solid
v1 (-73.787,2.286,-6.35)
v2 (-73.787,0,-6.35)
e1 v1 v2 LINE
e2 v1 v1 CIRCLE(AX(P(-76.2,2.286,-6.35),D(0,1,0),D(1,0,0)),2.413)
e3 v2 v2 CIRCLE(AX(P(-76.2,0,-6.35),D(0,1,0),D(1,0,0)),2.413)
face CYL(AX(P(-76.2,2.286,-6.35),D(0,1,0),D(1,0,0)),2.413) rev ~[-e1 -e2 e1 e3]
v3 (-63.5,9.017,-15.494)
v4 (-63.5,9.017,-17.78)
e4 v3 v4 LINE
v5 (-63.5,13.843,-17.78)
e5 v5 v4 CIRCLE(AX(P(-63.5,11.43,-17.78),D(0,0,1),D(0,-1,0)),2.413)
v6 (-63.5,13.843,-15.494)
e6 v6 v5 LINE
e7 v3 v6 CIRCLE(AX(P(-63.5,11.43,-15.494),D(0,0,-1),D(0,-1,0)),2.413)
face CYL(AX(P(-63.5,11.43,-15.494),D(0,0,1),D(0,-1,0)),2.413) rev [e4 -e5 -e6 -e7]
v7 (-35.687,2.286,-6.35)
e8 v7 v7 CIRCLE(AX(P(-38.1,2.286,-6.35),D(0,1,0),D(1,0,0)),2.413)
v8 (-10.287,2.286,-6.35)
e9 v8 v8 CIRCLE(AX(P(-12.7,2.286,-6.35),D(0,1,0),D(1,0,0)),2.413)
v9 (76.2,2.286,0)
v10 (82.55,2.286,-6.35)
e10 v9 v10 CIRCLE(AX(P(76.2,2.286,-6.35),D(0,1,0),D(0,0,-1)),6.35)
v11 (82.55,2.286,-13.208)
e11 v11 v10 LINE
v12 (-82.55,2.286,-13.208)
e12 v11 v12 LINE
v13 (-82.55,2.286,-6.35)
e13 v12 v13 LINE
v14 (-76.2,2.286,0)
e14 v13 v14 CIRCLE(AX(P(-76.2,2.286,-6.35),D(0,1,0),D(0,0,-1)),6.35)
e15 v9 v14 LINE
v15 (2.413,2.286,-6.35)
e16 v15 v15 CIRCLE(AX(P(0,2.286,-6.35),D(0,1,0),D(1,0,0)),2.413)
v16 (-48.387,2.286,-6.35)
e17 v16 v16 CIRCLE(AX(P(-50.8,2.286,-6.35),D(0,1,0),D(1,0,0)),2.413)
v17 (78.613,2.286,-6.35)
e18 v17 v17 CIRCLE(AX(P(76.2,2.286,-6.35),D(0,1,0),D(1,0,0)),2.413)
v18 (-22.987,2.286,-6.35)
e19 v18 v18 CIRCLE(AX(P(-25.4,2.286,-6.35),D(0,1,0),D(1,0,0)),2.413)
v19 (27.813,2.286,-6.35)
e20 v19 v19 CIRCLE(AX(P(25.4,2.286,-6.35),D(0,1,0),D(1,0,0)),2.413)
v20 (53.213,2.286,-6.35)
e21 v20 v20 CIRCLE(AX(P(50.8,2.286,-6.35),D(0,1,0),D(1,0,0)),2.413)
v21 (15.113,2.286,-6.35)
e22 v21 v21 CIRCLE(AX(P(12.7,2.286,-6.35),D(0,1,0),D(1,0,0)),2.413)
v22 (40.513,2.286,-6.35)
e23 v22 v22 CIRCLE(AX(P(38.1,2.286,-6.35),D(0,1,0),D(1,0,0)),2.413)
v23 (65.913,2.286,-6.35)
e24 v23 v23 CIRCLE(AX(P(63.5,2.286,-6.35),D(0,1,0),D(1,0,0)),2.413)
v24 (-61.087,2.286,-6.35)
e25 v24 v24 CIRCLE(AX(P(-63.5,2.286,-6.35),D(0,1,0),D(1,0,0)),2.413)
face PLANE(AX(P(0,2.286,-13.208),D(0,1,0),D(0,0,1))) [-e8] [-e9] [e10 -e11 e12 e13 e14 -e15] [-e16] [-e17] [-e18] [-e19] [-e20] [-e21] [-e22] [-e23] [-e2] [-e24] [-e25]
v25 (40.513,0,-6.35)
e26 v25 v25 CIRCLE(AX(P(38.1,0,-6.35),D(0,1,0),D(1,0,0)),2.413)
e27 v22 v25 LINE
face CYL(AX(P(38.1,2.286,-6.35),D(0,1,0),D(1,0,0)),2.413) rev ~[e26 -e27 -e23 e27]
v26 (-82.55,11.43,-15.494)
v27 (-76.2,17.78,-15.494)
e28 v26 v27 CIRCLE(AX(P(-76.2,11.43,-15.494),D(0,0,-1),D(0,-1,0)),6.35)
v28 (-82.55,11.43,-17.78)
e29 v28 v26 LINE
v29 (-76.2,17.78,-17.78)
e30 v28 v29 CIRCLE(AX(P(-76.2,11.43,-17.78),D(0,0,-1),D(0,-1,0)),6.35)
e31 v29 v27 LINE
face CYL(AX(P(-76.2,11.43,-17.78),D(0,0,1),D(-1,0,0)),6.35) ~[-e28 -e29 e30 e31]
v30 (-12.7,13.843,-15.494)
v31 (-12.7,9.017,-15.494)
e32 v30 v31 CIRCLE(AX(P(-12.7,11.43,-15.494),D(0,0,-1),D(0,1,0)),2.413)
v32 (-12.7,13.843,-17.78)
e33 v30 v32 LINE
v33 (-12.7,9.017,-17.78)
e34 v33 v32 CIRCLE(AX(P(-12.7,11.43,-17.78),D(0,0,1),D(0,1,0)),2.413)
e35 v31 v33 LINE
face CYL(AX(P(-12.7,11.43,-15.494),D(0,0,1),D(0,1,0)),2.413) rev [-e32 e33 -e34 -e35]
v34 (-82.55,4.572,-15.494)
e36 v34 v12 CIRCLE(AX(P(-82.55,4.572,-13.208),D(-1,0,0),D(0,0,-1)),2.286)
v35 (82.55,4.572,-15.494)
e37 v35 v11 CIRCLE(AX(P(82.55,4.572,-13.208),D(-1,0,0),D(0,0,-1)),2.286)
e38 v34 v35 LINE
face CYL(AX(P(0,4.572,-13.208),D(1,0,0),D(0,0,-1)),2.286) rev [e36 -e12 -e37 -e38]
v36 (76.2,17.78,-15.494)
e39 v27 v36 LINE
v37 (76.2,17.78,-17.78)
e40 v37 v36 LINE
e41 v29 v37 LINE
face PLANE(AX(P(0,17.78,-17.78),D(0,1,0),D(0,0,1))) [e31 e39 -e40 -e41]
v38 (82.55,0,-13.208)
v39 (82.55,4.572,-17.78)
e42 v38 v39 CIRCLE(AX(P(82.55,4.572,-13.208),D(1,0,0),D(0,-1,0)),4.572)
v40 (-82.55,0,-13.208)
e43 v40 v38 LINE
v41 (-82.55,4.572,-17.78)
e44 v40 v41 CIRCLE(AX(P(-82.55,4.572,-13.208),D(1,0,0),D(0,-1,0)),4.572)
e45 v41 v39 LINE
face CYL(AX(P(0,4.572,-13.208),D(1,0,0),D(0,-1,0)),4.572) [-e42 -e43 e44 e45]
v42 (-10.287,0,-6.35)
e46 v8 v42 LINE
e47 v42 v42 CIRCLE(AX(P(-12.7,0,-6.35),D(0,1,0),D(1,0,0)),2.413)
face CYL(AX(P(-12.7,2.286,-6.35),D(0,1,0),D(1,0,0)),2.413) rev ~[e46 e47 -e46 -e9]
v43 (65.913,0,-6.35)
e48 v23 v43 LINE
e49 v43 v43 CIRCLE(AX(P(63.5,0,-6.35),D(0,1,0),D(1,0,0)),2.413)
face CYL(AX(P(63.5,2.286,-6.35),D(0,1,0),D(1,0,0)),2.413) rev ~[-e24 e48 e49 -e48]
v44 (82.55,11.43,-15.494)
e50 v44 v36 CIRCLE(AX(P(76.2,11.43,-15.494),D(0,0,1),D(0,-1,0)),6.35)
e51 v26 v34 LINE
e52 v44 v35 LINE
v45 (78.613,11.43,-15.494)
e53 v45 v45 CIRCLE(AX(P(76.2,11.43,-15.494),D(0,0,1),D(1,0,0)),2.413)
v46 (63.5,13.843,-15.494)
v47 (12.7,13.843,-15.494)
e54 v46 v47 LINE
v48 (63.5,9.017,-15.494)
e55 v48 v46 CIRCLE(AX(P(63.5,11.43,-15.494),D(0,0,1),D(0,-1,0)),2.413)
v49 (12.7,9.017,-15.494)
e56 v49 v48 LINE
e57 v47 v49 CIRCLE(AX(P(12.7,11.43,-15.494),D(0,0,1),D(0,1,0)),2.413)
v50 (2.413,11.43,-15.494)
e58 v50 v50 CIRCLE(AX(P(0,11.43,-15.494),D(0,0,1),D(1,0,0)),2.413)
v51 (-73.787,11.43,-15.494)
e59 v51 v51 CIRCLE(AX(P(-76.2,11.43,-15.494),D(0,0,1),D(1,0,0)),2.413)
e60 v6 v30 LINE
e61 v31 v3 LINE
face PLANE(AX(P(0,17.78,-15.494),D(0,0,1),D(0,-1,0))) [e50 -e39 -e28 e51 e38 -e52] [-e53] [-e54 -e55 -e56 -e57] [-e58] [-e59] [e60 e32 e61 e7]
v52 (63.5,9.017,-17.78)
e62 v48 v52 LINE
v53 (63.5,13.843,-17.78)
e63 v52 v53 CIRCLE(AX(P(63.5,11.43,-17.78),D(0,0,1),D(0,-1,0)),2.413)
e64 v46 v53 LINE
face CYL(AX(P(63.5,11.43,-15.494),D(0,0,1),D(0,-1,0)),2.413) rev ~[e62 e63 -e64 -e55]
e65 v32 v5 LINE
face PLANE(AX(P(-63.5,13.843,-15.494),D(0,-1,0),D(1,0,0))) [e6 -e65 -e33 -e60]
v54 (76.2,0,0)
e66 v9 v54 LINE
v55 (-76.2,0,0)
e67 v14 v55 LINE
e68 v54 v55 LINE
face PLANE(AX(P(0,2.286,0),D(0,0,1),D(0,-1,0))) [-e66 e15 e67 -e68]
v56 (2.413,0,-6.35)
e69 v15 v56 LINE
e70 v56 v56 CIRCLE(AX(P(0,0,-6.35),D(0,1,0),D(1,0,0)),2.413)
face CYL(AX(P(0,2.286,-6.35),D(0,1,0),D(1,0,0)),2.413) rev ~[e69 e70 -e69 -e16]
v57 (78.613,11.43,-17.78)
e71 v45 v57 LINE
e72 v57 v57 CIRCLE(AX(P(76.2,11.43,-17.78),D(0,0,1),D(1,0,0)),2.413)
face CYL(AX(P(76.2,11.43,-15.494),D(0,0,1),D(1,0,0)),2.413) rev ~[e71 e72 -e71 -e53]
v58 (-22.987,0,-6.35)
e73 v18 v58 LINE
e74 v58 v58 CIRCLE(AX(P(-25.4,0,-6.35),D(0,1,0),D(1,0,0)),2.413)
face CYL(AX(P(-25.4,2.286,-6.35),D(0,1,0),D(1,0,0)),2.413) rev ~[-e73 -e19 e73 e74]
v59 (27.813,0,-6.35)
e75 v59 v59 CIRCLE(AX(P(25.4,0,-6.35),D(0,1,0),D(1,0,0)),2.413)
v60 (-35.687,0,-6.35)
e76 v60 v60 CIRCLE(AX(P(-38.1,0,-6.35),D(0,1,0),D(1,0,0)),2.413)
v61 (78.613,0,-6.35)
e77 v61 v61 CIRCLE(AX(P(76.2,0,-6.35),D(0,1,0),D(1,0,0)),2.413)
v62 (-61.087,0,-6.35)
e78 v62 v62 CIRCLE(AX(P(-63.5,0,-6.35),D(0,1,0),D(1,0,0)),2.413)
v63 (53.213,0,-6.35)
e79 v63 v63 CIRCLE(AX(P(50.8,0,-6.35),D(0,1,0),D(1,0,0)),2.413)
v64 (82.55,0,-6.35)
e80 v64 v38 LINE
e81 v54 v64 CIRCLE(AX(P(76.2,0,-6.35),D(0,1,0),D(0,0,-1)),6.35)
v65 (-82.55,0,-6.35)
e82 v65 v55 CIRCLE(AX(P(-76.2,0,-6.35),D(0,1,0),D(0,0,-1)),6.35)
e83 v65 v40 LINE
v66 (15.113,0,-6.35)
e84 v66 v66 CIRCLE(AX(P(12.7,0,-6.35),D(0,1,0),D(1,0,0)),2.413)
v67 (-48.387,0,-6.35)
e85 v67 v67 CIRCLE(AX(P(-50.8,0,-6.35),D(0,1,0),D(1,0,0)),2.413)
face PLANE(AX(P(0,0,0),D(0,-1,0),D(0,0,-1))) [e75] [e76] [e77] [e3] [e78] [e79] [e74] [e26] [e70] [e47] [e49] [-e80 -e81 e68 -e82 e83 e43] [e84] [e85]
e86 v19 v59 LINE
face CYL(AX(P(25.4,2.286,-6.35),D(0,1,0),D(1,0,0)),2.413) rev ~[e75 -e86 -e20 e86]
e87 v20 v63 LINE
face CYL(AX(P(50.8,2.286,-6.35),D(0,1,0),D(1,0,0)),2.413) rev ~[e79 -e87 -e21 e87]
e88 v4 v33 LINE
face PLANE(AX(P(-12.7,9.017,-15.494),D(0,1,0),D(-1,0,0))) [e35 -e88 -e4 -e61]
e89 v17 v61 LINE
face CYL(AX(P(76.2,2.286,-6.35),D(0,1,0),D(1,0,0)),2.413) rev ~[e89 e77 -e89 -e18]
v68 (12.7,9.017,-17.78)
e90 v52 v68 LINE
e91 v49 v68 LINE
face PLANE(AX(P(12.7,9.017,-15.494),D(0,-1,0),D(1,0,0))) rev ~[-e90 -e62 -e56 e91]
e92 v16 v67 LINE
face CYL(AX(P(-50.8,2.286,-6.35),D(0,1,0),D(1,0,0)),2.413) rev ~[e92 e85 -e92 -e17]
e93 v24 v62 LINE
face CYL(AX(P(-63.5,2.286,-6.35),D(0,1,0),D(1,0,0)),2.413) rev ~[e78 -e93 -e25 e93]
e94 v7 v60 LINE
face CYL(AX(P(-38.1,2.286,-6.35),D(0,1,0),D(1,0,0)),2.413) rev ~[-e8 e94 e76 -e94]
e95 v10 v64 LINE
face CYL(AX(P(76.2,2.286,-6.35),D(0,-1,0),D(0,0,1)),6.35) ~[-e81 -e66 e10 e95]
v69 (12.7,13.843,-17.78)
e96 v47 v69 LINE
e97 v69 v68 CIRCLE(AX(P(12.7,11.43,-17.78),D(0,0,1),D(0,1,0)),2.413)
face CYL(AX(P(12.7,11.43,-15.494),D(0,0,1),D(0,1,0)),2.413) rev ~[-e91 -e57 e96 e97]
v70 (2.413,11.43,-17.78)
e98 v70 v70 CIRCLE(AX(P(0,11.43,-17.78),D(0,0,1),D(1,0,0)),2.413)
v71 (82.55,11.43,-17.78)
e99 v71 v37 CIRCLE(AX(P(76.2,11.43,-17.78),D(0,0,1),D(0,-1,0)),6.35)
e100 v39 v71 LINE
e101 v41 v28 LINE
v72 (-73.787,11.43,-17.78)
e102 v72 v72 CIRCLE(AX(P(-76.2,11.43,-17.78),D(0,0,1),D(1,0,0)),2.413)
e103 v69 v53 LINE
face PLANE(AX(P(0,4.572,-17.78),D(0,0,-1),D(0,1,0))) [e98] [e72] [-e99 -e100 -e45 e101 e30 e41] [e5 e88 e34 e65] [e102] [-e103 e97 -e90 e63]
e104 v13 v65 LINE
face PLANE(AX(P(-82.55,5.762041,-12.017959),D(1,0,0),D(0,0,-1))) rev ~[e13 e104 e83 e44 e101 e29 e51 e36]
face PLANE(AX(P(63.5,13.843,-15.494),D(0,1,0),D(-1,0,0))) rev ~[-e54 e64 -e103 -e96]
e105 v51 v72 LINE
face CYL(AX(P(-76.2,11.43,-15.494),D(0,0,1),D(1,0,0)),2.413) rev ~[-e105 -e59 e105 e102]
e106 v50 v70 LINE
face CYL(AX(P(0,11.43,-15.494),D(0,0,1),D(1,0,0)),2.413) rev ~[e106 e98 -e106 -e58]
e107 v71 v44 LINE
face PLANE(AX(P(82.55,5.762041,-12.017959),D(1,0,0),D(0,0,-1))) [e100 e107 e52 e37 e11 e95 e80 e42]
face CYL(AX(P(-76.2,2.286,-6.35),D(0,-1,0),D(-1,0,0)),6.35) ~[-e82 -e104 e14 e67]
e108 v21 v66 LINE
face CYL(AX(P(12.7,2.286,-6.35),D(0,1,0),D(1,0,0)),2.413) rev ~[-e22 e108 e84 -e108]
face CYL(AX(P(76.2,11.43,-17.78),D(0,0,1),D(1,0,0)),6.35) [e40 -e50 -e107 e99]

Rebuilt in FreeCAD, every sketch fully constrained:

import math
import FreeCAD as App
import Part
import Sketcher

V = App.Vector
Q = App.Units.Quantity


def edges_at(feature, points):
    """Names of the edges that pass closest to the given points."""
    edges = feature.Shape.Edges
    near = lambda p: min(range(len(edges)), key=lambda i: edges[i].distToShape(Part.Vertex(*p))[0])
    return sorted({f"Edge{near(p) + 1}" for p in points})

doc = App.newDocument("Part")
body = doc.addObject("PartDesign::Body", "Body")

# Sketch on YZ plane
sketch1 = body.newObject("Sketcher::SketchObject", "Sketch")
sketch1.AttachmentSupport = (doc.getObject("YZ_Plane"), [""])
sketch1.MapMode = "FlatFace"
sketch1.addGeometry([
    Part.LineSegment(V(0, 0, 0), V(0, -13.2, 0)),  # 0
    Part.ArcOfCircle(Part.Circle(V(4.6, -13.2, 0), V(0, 0, 1), 4.6), math.radians(180), math.radians(270)),  # 1
    Part.LineSegment(V(4.6, -17.8, 0), V(17.8, -17.8, 0)),  # 2
    Part.LineSegment(V(17.8, -17.8, 0), V(17.8, -15.5, 0)),  # 3
    Part.LineSegment(V(17.8, -15.5, 0), V(4.6, -15.5, 0)),  # 4
    Part.ArcOfCircle(Part.Circle(V(4.6, -13.2, 0), V(0, 0, 1), 2.3), math.radians(180), math.radians(270)),  # 5
    Part.LineSegment(V(2.3, -13.2, 0), V(2.3, 0, 0)),  # 6
    Part.LineSegment(V(2.3, 0, 0), V(0, 0, 0)),  # 7
], False)
sketch1.addConstraint([
    Sketcher.Constraint("Tangent", 0, 2, 1, 1),
    Sketcher.Constraint("Tangent", 1, 2, 2, 1),
    Sketcher.Constraint("Coincident", 2, 2, 3, 1),
    Sketcher.Constraint("Coincident", 3, 2, 4, 1),
    Sketcher.Constraint("Tangent", 4, 2, 5, 2),
    Sketcher.Constraint("Tangent", 5, 1, 6, 1),
    Sketcher.Constraint("Coincident", 6, 2, 7, 1),
    Sketcher.Constraint("Coincident", 7, 2, 0, 1),
    Sketcher.Constraint("Vertical", 0),
    Sketcher.Constraint("Horizontal", 2),
    Sketcher.Constraint("Vertical", 3),
    Sketcher.Constraint("Horizontal", 4),
    Sketcher.Constraint("Vertical", 6),
    Sketcher.Constraint("Horizontal", 7),
    Sketcher.Constraint("Coincident", 7, 2, -1, 1),
    Sketcher.Constraint("Coincident", 5, 3, 1, 3),
    Sketcher.Constraint("Equal", 4, 0),
    Sketcher.Constraint("Radius", 1, Q("0.18 in")),
    Sketcher.Constraint("Radius", 5, Q("0.09 in")),
    Sketcher.Constraint("DistanceX", 2, 1, 2, 2, Q("0.52 in")),
])
pad1 = body.newObject("PartDesign::Pad", "Pad")
pad1.Profile = sketch1
pad1.Length = Q("6.5 in")
pad1.Midplane = True

# Sketch on XZ plane
sketch2 = body.newObject("Sketcher::SketchObject", "Sketch001")
sketch2.AttachmentSupport = (doc.getObject("XZ_Plane"), [""])
sketch2.MapMode = "FlatFace"
sketch2.AttachmentOffset = App.Placement(V(0, 0, -0.09 * 25.4), App.Rotation())
sketch2.addGeometry(Part.Circle(V(-76.2, -6.3, 0), V(0, 0, 1), 2.4), False)
sketch2.addConstraint([
    Sketcher.Constraint("Diameter", 0, Q("0.19 in")),
    Sketcher.Constraint("DistanceX", 0, 3, -1, 1, Q("3 in")),
    Sketcher.Constraint("DistanceY", 0, 3, -1, 1, Q("0.25 in")),
])
pocket1 = body.newObject("PartDesign::Pocket", "Pocket")
pocket1.Profile = sketch2
pocket1.Type = "ThroughAll"
pocket1.Reversed = True
doc.recompute()

linearpattern = body.newObject("PartDesign::LinearPattern", "LinearPattern")
linearpattern.Originals = [pocket1]
linearpattern.Direction = (doc.getObject("X_Axis"), [""])
linearpattern.Mode = "offset"
linearpattern.Offset = Q("0.5 in")
linearpattern.Occurrences = 13
body.Tip = linearpattern
doc.recompute()

fillet = body.newObject("PartDesign::Fillet", "Fillet")
fillet.Base = (linearpattern, edges_at(linearpattern, [
    (82.55, 1.143, 0),
    (82.55, 17.78, -16.637),
    (-82.55, 1.143, 0),
    (-82.55, 17.78, -16.637),
]))
fillet.Radius = Q("0.25 in")

# Sketch on XY plane
sketch3 = body.newObject("Sketcher::SketchObject", "Sketch002")
sketch3.AttachmentSupport = (doc.getObject("XY_Plane"), [""])
sketch3.MapMode = "FlatFace"
sketch3.AttachmentOffset = App.Placement(V(0, 0, -0.61 * 25.4), App.Rotation())
sketch3.addGeometry(Part.Circle(V(-76.2, 11.4, 0), V(0, 0, 1), 2.4), False)
sketch3.addConstraint([
    Sketcher.Constraint("Diameter", 0, Q("0.19 in")),
    Sketcher.Constraint("DistanceX", 0, 3, -1, 1, Q("3 in")),
    Sketcher.Constraint("DistanceY", -1, 1, 0, 3, Q("0.45 in")),
])
pocket2 = body.newObject("PartDesign::Pocket", "Pocket001")
pocket2.Profile = sketch3
pocket2.Type = "ThroughAll"
doc.recompute()

linearpattern2 = body.newObject("PartDesign::LinearPattern", "LinearPattern001")
linearpattern2.Originals = [pocket2]
linearpattern2.Direction = (doc.getObject("X_Axis"), [""])
linearpattern2.Mode = "offset"
linearpattern2.Offset = Q("3 in")
linearpattern2.Occurrences = 3
body.Tip = linearpattern2

# Sketch on XY plane
sketch4 = body.newObject("Sketcher::SketchObject", "Sketch003")
sketch4.AttachmentSupport = (doc.getObject("XY_Plane"), [""])
sketch4.MapMode = "FlatFace"
sketch4.AttachmentOffset = App.Placement(V(0, 0, -0.61 * 25.4), App.Rotation())
sketch4.addGeometry([
    Part.LineSegment(V(-12.7, 13.8, 0), V(-63.5, 13.8, 0)),  # 0
    Part.ArcOfCircle(Part.Circle(V(-63.5, 11.4, 0), V(0, 0, 1), 2.4), math.radians(90), math.radians(270)),  # 1
    Part.LineSegment(V(-63.5, 9, 0), V(-12.7, 9, 0)),  # 2
    Part.ArcOfCircle(Part.Circle(V(-12.7, 11.4, 0), V(0, 0, 1), 2.4), math.radians(-90), math.radians(90)),  # 3
    Part.LineSegment(V(63.5, 13.8, 0), V(12.7, 13.8, 0)),  # 4
    Part.ArcOfCircle(Part.Circle(V(12.7, 11.4, 0), V(0, 0, 1), 2.4), math.radians(90), math.radians(270)),  # 5
    Part.LineSegment(V(12.7, 9, 0), V(63.5, 9, 0)),  # 6
    Part.ArcOfCircle(Part.Circle(V(63.5, 11.4, 0), V(0, 0, 1), 2.4), math.radians(-90), math.radians(90)),  # 7
], False)
sketch4.addConstraint([
    Sketcher.Constraint("Tangent", 0, 2, 1, 1),
    Sketcher.Constraint("Tangent", 1, 2, 2, 1),
    Sketcher.Constraint("Tangent", 2, 2, 3, 1),
    Sketcher.Constraint("Tangent", 3, 2, 0, 1),
    Sketcher.Constraint("Tangent", 4, 2, 5, 1),
    Sketcher.Constraint("Tangent", 5, 2, 6, 1),
    Sketcher.Constraint("Tangent", 6, 2, 7, 1),
    Sketcher.Constraint("Tangent", 7, 2, 4, 1),
    Sketcher.Constraint("Horizontal", 0),
    Sketcher.Constraint("Horizontal", 2),
    Sketcher.Constraint("Horizontal", 4),
    Sketcher.Constraint("Horizontal", 6),
    Sketcher.Constraint("Equal", 3, 5),
    Sketcher.Constraint("Symmetric", 3, 3, 5, 3, -2),
    Sketcher.Constraint("Equal", 2, 4),
    Sketcher.Constraint("DistanceX", 0, 2, 0, 1, Q("2 in")),
    Sketcher.Constraint("Radius", 1, Q("0.095 in")),
    Sketcher.Constraint("DistanceX", 3, 3, 5, 3, Q("1 in")),
    Sketcher.Constraint("DistanceY", -1, 1, 1, 3, Q("0.45 in")),
])
pocket3 = body.newObject("PartDesign::Pocket", "Pocket002")
pocket3.Profile = sketch4
pocket3.Type = "ThroughAll"

doc.recompute()
